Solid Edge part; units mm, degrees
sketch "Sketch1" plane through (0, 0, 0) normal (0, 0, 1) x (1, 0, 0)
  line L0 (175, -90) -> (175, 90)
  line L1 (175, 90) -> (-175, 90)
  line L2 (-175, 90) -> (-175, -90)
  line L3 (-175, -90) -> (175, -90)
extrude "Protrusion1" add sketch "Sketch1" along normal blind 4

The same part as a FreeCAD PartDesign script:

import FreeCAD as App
import Part
import Sketcher
Q = App.Units.Quantity

doc = App.newDocument("Part")
body = doc.addObject("PartDesign::Body", "Body")

sketch1 = body.newObject("Sketcher::SketchObject", "Sketch")
sketch1.AttachmentSupport = (doc.getObject("XY_Plane"), [""])
sketch1.MapMode = "FlatFace"
sketch1.addGeometry([
    Part.LineSegment(App.Vector(-175, -90, 0), App.Vector(175, -90, 0)),
    Part.LineSegment(App.Vector(175, -90, 0), App.Vector(175, 90, 0)),
    Part.LineSegment(App.Vector(175, 90, 0), App.Vector(-175, 90, 0)),
    Part.LineSegment(App.Vector(-175, 90, 0), App.Vector(-175, -90, 0)),
], False)
sketch1.addConstraint([
    Sketcher.Constraint("Coincident", 0, 2, 1, 1),
    Sketcher.Constraint("Coincident", 1, 2, 2, 1),
    Sketcher.Constraint("Coincident", 2, 2, 3, 1),
    Sketcher.Constraint("Coincident", 3, 2, 0, 1),
    Sketcher.Constraint("Horizontal", 0),
    Sketcher.Constraint("Vertical", 1),
    Sketcher.Constraint("Horizontal", 2),
    Sketcher.Constraint("Vertical", 3),
    Sketcher.Constraint("Symmetric", 0, 2, 2, 2, -1, 1),
    Sketcher.Constraint("DistanceX", 0, 1, 0, 2, Q("350 mm")),
    Sketcher.Constraint("DistanceY", 1, 1, 1, 2, Q("180 mm")),
])
pad1 = body.newObject("PartDesign::Pad", "Pad")
pad1.Profile = sketch1
pad1.Length = 4

doc.recompute()
